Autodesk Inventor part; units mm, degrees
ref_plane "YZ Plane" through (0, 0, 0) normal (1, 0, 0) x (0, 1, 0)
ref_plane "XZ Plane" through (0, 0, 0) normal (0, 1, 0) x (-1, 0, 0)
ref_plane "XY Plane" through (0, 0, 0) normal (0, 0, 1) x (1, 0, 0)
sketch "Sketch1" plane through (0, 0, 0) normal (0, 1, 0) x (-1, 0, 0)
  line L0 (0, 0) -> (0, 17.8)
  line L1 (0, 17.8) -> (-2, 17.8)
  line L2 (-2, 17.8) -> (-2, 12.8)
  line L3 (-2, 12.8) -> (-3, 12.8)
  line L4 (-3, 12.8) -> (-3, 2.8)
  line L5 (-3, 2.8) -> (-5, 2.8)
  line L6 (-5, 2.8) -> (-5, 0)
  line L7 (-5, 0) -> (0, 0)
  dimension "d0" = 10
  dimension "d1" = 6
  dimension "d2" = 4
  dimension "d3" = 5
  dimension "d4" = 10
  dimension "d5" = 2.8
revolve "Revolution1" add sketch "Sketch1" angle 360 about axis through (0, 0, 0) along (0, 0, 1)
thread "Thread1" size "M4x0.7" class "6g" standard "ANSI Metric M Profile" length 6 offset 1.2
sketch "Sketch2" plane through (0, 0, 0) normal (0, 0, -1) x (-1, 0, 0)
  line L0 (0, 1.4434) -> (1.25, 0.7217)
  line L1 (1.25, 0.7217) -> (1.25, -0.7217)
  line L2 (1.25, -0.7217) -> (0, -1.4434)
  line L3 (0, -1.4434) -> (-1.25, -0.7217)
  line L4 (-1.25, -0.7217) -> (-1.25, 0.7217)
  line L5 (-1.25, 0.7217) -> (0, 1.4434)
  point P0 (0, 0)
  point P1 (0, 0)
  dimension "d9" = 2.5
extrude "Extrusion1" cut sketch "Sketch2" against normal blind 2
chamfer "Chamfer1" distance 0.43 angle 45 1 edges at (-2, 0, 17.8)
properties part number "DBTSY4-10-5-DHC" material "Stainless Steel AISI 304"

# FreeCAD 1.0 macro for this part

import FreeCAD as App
import Part
import Sketcher
Q = App.Units.Quantity


def edges_at(feature, points):
    """Names of the edges that pass closest to the given points."""
    edges = feature.Shape.Edges
    near = lambda p: min(range(len(edges)), key=lambda i: edges[i].distToShape(Part.Vertex(*p))[0])
    return sorted({f"Edge{near(p) + 1}" for p in points})


def add_polygon(sketch, points):
    """Adds a closed chain of lines whose ends are joined by coincident constraints."""
    first, n = sketch.GeometryCount, len(points)
    for a, b in zip(points, points[1:] + points[:1]):
        sketch.addGeometry(Part.LineSegment(App.Vector(*a, 0), App.Vector(*b, 0)), False)
    for i in range(n):
        sketch.addConstraint(Sketcher.Constraint("Coincident", first + i, 2, first + (i + 1) % n, 1))

doc = App.newDocument("Part")
body = doc.addObject("PartDesign::Body", "Body")

sketch1 = body.newObject("Sketcher::SketchObject", "Sketch")
sketch1.AttachmentSupport = (doc.getObject("XZ_Plane"), [""])
sketch1.MapMode = "FlatFace"
add_polygon(sketch1, [(5, 0), (0, 0), (0, 17.8), (2, 17.8), (2, 12.8), (3, 12.8), (3, 2.8), (5, 2.8)])
sketch1.addConstraint([
    Sketcher.Constraint("Horizontal", 0),
    Sketcher.Constraint("Vertical", 1),
    Sketcher.Constraint("Horizontal", 2),
    Sketcher.Constraint("Vertical", 3),
    Sketcher.Constraint("Horizontal", 4),
    Sketcher.Constraint("Vertical", 5),
    Sketcher.Constraint("Horizontal", 6),
    Sketcher.Constraint("Vertical", 7),
    Sketcher.Constraint("Coincident", 0, 2, -1, 1),
    Sketcher.Constraint("Equal", 2, 6),
    Sketcher.Constraint("Equal", 0, 3),
    Sketcher.Constraint("DistanceX", 0, 2, 0, 1, 5.0),
    Sketcher.Constraint("DistanceY", 5, 2, 5, 1, 10.0),
    Sketcher.Constraint("DistanceY", 7, 2, 7, 1, 2.8),
    Sketcher.Constraint("DistanceX", 2, 1, 2, 2, 2.0),
])
revolution = body.newObject("PartDesign::Revolution", "Revolution")
revolution.Profile = sketch1
revolution.ReferenceAxis = (sketch1, ["V_Axis"])
revolution.Angle = 360

sketch2 = body.newObject("Sketcher::SketchObject", "Sketch001")
sketch2.AttachmentSupport = (doc.getObject("XY_Plane"), [""])
sketch2.MapMode = "FlatFace"
add_polygon(sketch2, [(-1.2, 0.7), (0, 1.4), (1.2, 0.7), (1.2, -0.7), (0, -1.4), (-1.2, -0.7)])
sketch2.addConstraint([
    Sketcher.Constraint("Vertical", 2),
    Sketcher.Constraint("Vertical", 5),
    Sketcher.Constraint("Symmetric", 0, 2, 3, 2, -1, 1),
    Sketcher.Constraint("Symmetric", 1, 2, 4, 2, -1, 1),
    Sketcher.Constraint("PointOnObject", 0, 2, -2),
    Sketcher.Constraint("Parallel", 0, 3),
    Sketcher.Constraint("Horizontal", 2, 2, 4, 2),
    Sketcher.Constraint("DistanceX", 4, 2, 2, 2, 2.5),
    Sketcher.Constraint("Angle", 0, Q("30.0004 deg")),
    Sketcher.Constraint("DistanceY", 2, 2, 2, 1, 1.4434),
])
pocket1 = body.newObject("PartDesign::Pocket", "Pocket")
pocket1.Profile = sketch2
pocket1.Length = 2
pocket1.Reversed = True
doc.recompute()

chamfer = body.newObject("PartDesign::Chamfer", "Chamfer")
chamfer.Base = (pocket1, edges_at(pocket1, [(-2, 0, 17.8)]))
chamfer.Size = 0.43

doc.recompute()
